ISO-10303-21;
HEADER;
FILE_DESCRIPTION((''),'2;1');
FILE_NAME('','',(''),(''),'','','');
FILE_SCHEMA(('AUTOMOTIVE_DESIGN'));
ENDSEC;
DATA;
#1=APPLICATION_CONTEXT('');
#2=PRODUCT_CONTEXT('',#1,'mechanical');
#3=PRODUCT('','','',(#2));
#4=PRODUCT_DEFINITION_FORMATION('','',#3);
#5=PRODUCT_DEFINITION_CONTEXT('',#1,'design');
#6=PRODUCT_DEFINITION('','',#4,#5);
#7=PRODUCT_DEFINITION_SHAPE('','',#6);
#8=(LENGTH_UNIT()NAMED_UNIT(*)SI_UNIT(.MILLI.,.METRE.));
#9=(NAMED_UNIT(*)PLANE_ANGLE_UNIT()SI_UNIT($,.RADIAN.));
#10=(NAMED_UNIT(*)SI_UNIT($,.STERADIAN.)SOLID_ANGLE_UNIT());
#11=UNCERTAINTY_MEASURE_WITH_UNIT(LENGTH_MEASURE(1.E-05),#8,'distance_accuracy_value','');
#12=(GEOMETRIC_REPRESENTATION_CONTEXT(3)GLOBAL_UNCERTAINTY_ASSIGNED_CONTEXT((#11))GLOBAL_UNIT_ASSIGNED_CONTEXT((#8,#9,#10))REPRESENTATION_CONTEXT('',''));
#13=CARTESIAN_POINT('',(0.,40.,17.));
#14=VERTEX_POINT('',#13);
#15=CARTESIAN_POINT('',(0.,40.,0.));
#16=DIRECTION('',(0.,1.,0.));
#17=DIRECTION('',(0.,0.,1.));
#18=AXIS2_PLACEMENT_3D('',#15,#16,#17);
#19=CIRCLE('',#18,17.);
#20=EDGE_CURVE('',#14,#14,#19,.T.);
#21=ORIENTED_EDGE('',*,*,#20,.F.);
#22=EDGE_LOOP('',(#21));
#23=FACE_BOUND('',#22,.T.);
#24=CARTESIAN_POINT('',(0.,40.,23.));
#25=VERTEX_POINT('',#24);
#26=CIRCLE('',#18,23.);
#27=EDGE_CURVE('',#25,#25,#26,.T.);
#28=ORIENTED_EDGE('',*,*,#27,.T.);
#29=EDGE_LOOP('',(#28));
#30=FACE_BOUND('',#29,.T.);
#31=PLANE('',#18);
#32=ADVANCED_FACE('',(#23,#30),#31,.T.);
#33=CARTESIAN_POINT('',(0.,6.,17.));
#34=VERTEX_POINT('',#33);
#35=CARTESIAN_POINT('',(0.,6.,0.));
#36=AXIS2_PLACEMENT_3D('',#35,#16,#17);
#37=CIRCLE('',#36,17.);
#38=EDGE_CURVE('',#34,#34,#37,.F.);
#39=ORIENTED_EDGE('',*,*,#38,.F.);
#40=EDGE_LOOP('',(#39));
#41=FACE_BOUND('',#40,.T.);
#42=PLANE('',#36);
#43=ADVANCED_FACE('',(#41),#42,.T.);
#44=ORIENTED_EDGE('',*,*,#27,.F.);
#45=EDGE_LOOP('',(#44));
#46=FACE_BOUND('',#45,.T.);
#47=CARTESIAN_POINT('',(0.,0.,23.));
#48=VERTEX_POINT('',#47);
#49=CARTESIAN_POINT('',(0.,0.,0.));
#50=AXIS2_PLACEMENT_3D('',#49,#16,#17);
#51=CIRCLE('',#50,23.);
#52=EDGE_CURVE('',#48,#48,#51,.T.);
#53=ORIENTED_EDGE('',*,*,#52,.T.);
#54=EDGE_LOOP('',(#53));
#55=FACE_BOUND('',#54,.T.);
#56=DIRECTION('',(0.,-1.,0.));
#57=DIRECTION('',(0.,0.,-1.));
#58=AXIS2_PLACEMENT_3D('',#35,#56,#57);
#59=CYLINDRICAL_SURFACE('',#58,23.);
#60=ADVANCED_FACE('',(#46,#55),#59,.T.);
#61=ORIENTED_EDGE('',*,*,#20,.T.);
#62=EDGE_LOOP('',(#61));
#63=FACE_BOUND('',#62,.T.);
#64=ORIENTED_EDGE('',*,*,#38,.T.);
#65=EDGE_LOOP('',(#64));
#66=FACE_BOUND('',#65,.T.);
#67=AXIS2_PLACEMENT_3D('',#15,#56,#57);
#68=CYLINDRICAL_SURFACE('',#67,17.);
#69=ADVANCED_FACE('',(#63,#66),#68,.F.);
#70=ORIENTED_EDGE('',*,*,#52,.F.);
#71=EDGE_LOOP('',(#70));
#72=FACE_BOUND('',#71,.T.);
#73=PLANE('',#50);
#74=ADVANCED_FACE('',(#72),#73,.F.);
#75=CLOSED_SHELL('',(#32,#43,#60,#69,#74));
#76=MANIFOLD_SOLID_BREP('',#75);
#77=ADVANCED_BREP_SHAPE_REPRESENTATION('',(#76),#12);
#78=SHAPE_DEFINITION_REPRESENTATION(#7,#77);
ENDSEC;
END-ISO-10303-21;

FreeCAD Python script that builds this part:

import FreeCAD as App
import Part
import Sketcher

V = App.Vector

doc = App.newDocument("Part")
body = doc.addObject("PartDesign::Body", "Body")

# Sketch on XZ plane
sketch1 = body.newObject("Sketcher::SketchObject", "Sketch")
sketch1.AttachmentSupport = (doc.getObject("XZ_Plane"), [""])
sketch1.MapMode = "FlatFace"
sketch1.addGeometry(Part.Circle(V(0, 0, 0), V(0, 0, 1), 23), False)
sketch1.addConstraint(Sketcher.Constraint("Coincident", 0, 3, -1, 1))
sketch1.addConstraint(Sketcher.Constraint("Diameter", 0, 46.0))
pad1 = body.newObject("PartDesign::Pad", "Pad")
pad1.Profile = sketch1
pad1.Length = 6
pad1.Reversed = True

# Sketch on XZ plane
sketch2 = body.newObject("Sketcher::SketchObject", "Sketch001")
sketch2.AttachmentSupport = (doc.getObject("XZ_Plane"), [""])
sketch2.MapMode = "FlatFace"
sketch2.AttachmentOffset = App.Placement(V(0, 0, -6), App.Rotation())
sketch2.addGeometry(Part.Circle(V(0, 0, 0), V(0, 0, 1), 23), False)
sketch2.addGeometry(Part.Circle(V(0, 0, 0), V(0, 0, 1), 17), False)
sketch2.addConstraint(Sketcher.Constraint("Coincident", 0, 3, -1, 1))
sketch2.addConstraint(Sketcher.Constraint("Coincident", 1, 3, -1, 1))
sketch2.addConstraint(Sketcher.Constraint("Diameter", 0, 46.0))
sketch2.addConstraint(Sketcher.Constraint("Diameter", 1, 34.0))
pad2 = body.newObject("PartDesign::Pad", "Pad001")
pad2.Profile = sketch2
pad2.Length = 34
pad2.Reversed = True

doc.recompute()
